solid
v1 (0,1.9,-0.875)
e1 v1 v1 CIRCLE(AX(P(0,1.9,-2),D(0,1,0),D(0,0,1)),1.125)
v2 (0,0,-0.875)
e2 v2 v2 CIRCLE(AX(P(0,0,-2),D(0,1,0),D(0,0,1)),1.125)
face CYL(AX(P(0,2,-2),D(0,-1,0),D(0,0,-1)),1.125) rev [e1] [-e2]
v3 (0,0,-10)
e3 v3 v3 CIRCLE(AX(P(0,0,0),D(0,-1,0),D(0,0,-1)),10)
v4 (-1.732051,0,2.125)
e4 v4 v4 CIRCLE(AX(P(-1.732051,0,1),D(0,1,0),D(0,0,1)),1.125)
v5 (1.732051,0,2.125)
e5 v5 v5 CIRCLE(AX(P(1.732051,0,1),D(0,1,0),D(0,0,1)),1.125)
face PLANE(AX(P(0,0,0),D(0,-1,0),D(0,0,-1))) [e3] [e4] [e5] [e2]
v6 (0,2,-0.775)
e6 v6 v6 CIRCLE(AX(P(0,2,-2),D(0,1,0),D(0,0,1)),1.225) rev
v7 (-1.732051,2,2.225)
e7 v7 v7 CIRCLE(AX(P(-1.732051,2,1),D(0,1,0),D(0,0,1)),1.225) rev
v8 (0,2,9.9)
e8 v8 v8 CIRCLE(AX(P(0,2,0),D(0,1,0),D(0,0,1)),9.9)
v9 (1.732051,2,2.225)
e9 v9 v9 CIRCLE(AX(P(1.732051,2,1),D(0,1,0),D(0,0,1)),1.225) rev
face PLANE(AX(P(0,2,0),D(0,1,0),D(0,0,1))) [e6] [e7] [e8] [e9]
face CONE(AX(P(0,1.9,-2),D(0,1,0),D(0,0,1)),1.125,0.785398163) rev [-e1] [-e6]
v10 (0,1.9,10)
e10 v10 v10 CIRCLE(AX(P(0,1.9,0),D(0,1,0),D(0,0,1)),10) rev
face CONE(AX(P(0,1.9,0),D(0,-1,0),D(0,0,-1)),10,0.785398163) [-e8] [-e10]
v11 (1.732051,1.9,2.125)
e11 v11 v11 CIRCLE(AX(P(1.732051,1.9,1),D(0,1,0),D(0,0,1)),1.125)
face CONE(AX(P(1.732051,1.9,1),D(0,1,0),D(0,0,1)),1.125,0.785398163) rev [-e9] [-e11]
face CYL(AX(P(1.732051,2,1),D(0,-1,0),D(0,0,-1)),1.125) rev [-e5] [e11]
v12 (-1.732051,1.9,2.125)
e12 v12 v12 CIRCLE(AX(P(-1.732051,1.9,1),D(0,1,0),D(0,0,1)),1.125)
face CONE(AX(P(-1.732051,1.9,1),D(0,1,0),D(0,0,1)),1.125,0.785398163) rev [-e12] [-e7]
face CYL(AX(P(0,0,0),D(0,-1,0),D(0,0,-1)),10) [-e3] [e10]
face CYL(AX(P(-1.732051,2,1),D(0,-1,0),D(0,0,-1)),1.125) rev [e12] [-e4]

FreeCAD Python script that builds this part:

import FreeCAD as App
import Part
import Sketcher
Q = App.Units.Quantity


def edges_at(feature, points):
    """Names of the edges that pass closest to the given points."""
    edges = feature.Shape.Edges
    near = lambda p: min(range(len(edges)), key=lambda i: edges[i].distToShape(Part.Vertex(*p))[0])
    return sorted({f"Edge{near(p) + 1}" for p in points})


def add_polygon(sketch, points):
    """Adds a closed chain of lines whose ends are joined by coincident constraints."""
    first, n = sketch.GeometryCount, len(points)
    for a, b in zip(points, points[1:] + points[:1]):
        sketch.addGeometry(Part.LineSegment(App.Vector(*a, 0), App.Vector(*b, 0)), False)
    for i in range(n):
        sketch.addConstraint(Sketcher.Constraint("Coincident", first + i, 2, first + (i + 1) % n, 1))

doc = App.newDocument("Part")
body = doc.addObject("PartDesign::Body", "Body")

sketch1 = body.newObject("Sketcher::SketchObject", "Sketch")
sketch1.AttachmentSupport = (doc.getObject("XY_Plane"), [""])
sketch1.MapMode = "FlatFace"
add_polygon(sketch1, [(0, 2), (0, 0), (10, 0), (10, 2)])
sketch1.addConstraint(Sketcher.Constraint("Vertical", 0))
sketch1.addConstraint(Sketcher.Constraint("Horizontal", 1))
sketch1.addConstraint(Sketcher.Constraint("Vertical", 2))
sketch1.addConstraint(Sketcher.Constraint("Horizontal", 3))
sketch1.addConstraint(Sketcher.Constraint("Coincident", 0, 2, -1, 1))
sketch1.addConstraint(Sketcher.Constraint("DistanceX", 1, 1, 1, 2, Q("10 mm")))
sketch1.addConstraint(Sketcher.Constraint("DistanceY", 0, 2, 0, 1, Q("2 mm")))
revolution = body.newObject("PartDesign::Revolution", "Revolution")
revolution.Profile = sketch1
revolution.ReferenceAxis = (sketch1, ["V_Axis"])
revolution.Angle = 360

sketch2 = body.newObject("Sketcher::SketchObject", "Sketch001")
sketch2.AttachmentSupport = (doc.getObject("XZ_Plane"), [""])
sketch2.MapMode = "FlatFace"
sketch2.addGeometry(Part.Circle(App.Vector(-1.732051, 1, 0), App.Vector(0, 0, 1), 1.125), False)
sketch2.addGeometry(Part.Circle(App.Vector(1.732051, 1, 0), App.Vector(0, 0, 1), 1.125), False)
sketch2.addGeometry(Part.Circle(App.Vector(0, -2, 0), App.Vector(0, 0, 1), 1.125), False)
sketch2.addConstraint(Sketcher.Constraint("Equal", 0, 1))
sketch2.addConstraint(Sketcher.Constraint("Equal", 1, 2))
sketch2.addConstraint(Sketcher.Constraint("Symmetric", 0, 3, 1, 3, -2))
sketch2.addConstraint(Sketcher.Constraint("PointOnObject", 2, 3, -2))
sketch2.addConstraint(Sketcher.Constraint("Diameter", 0, Q("2.25 mm")))
sketch2.addConstraint(Sketcher.Constraint("DistanceY", -1, 1, 0, 3, Q("1 mm")))
sketch2.addConstraint(Sketcher.Constraint("DistanceY", 2, 3, -1, 1, Q("2 mm")))
sketch2.addConstraint(Sketcher.Constraint("DistanceX", 0, 3, 1, 3, Q("3.464102 mm")))
pocket1 = body.newObject("PartDesign::Pocket", "Pocket")
pocket1.Profile = sketch2
pocket1.Type = "ThroughAll"
doc.recompute()

chamfer = body.newObject("PartDesign::Chamfer", "Chamfer")
chamfer.Base = (pocket1, edges_at(pocket1, [
    (0, 2, -3.125),
    (-1.732, 2, -0.125),
    (1.732, 2, -0.125),
    (0, 2, 10),
]))
chamfer.Size = 0.1

doc.recompute()
